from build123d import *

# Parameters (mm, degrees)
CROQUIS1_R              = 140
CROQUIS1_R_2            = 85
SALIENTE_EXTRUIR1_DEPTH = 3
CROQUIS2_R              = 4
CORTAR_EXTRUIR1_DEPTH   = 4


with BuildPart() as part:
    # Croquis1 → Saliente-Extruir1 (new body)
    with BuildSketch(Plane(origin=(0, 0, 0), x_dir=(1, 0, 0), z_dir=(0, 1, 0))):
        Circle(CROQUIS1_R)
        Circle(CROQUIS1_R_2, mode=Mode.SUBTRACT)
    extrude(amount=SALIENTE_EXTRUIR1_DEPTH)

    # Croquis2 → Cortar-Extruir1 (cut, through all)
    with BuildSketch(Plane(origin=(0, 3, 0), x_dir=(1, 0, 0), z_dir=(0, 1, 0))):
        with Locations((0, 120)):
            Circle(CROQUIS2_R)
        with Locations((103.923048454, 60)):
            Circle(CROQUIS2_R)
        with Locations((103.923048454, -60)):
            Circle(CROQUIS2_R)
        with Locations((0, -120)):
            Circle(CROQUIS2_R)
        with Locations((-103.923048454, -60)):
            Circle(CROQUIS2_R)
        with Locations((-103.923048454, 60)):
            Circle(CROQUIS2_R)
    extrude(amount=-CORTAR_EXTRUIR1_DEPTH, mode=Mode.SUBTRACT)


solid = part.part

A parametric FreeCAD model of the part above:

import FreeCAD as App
import Part
import Sketcher
Q = App.Units.Quantity

doc = App.newDocument("Part")
body = doc.addObject("PartDesign::Body", "Body")

sketch1 = body.newObject("Sketcher::SketchObject", "Sketch")
sketch1.AttachmentSupport = (doc.getObject("XZ_Plane"), [""])
sketch1.MapMode = "FlatFace"
sketch1.addGeometry([
    Part.Circle(App.Vector(0, 0, 0), App.Vector(0, 0, 1), 140),
    Part.Circle(App.Vector(0, 0, 0), App.Vector(0, 0, 1), 85),
], False)
sketch1.addConstraint([
    Sketcher.Constraint("Coincident", 0, 3, -1, 1),
    Sketcher.Constraint("Coincident", 1, 3, -1, 1),
    Sketcher.Constraint("Diameter", 0, Q("280 mm")),
    Sketcher.Constraint("Diameter", 1, Q("170 mm")),
])
pad1 = body.newObject("PartDesign::Pad", "Pad")
pad1.Profile = sketch1
pad1.Length = 3
pad1.Reversed = True

sketch2 = body.newObject("Sketcher::SketchObject", "Sketch001")
sketch2.AttachmentSupport = (doc.getObject("XZ_Plane"), [""])
sketch2.MapMode = "FlatFace"
sketch2.AttachmentOffset = App.Placement(App.Vector(0, 0, -3), App.Rotation())
sketch2.addGeometry([
    Part.Circle(App.Vector(0, -120, 0), App.Vector(0, 0, 1), 4),
    Part.Circle(App.Vector(103.9, -60, 0), App.Vector(0, 0, 1), 4),
    Part.Circle(App.Vector(103.9, 60, 0), App.Vector(0, 0, 1), 4),
    Part.Circle(App.Vector(0, 120, 0), App.Vector(0, 0, 1), 4),
    Part.Circle(App.Vector(-103.9, 60, 0), App.Vector(0, 0, 1), 4),
    Part.Circle(App.Vector(-103.9, -60, 0), App.Vector(0, 0, 1), 4),
], False)
sketch2.addConstraint([
    Sketcher.Constraint("Equal", 0, 1),
    Sketcher.Constraint("Equal", 1, 2),
    Sketcher.Constraint("Equal", 2, 3),
    Sketcher.Constraint("Equal", 3, 4),
    Sketcher.Constraint("Equal", 4, 5),
    Sketcher.Constraint("Symmetric", 0, 3, 3, 3, -1, 1),
    Sketcher.Constraint("Symmetric", 1, 3, 4, 3, -1, 1),
    Sketcher.Constraint("Symmetric", 2, 3, 5, 3, -1, 1),
    Sketcher.Constraint("Symmetric", 2, 3, 4, 3, -2),
    Sketcher.Constraint("PointOnObject", 0, 3, -2),
    Sketcher.Constraint("Diameter", 0, Q("8 mm")),
    Sketcher.Constraint("DistanceY", 0, 3, -1, 1, Q("120 mm")),
    Sketcher.Constraint("DistanceY", 1, 3, -1, 1, Q("60 mm")),
    Sketcher.Constraint("DistanceX", -1, 1, 1, 3, Q("103.923048 mm")),
])
pocket1 = body.newObject("PartDesign::Pocket", "Pocket")
pocket1.Profile = sketch2
pocket1.Type = "ThroughAll"
pocket1.Reversed = True

doc.recompute()
